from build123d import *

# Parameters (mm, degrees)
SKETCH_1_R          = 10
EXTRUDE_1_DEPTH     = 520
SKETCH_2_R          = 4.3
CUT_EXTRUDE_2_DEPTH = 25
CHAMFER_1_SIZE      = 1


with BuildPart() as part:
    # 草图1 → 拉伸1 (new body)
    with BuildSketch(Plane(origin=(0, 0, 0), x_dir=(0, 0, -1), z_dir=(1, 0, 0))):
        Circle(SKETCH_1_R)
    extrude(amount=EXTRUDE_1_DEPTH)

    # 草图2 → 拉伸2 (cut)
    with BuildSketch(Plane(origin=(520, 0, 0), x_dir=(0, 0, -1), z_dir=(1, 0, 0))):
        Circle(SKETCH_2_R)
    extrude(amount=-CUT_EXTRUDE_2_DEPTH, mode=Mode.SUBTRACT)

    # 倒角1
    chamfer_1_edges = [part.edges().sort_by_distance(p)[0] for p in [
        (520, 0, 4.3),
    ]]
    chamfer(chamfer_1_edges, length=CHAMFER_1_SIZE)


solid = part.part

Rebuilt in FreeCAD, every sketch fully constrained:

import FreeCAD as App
import Part
import Sketcher


def edges_at(feature, points):
    """Names of the edges that pass closest to the given points."""
    edges = feature.Shape.Edges
    near = lambda p: min(range(len(edges)), key=lambda i: edges[i].distToShape(Part.Vertex(*p))[0])
    return sorted({f"Edge{near(p) + 1}" for p in points})

doc = App.newDocument("Part")
params = doc.addObject("Spreadsheet::Sheet", "Params")
for row, (alias, value) in enumerate([
    ("sketch1_diameter", "20 mm"),
    ("pad1_length", "520 mm"),
    ("sketch2_diameter", "8.6 mm"),
    ("pocket1_length", "25 mm"),
    ("chamfer_size", "1 mm"),
], start=1):
    params.set(f"A{row}", alias)
    params.set(f"B{row}", "=" + value)
    params.setAlias(f"B{row}", alias)

body = doc.addObject("PartDesign::Body", "Body")

# Sketch on YZ plane
sketch1 = doc.addObject("Sketcher::SketchObject", "Sketch")
body.addObject(sketch1)
sketch1.AttachmentSupport = (doc.YZ_Plane, [""])
sketch1.MapMode = "FlatFace"
sketch1.addGeometry(Part.Circle(App.Vector(0, 0, 0), App.Vector(0, 0, 1), 10), False)
sketch1.addConstraint(Sketcher.Constraint("Coincident", 0, 3, -1, 1))
sketch1.addConstraint(Sketcher.Constraint("Diameter", 0, 20.0))
sketch1.setExpression("Constraints[1]", "Params.sketch1_diameter")
pad1 = doc.addObject("PartDesign::Pad", "Pad")
body.addObject(pad1)
pad1.Profile = sketch1
pad1.setExpression("Length", "Params.pad1_length")

# Sketch on YZ plane
sketch2 = doc.addObject("Sketcher::SketchObject", "Sketch001")
body.addObject(sketch2)
sketch2.AttachmentSupport = (doc.YZ_Plane, [""])
sketch2.MapMode = "FlatFace"
sketch2.AttachmentOffset = App.Placement(App.Vector(0, 0, 520), App.Rotation())
sketch2.addGeometry(Part.Circle(App.Vector(0, 0, 0), App.Vector(0, 0, 1), 4.3), False)
sketch2.addConstraint(Sketcher.Constraint("Coincident", 0, 3, -1, 1))
sketch2.addConstraint(Sketcher.Constraint("Diameter", 0, 8.6))
sketch2.setExpression("Constraints[1]", "Params.sketch2_diameter")
pocket1 = doc.addObject("PartDesign::Pocket", "Pocket")
body.addObject(pocket1)
pocket1.Profile = sketch2
pocket1.setExpression("Length", "Params.pocket1_length")
doc.recompute()

chamfer = doc.addObject("PartDesign::Chamfer", "Chamfer")
body.addObject(chamfer)
chamfer.Base = (pocket1, edges_at(pocket1, [(520, 0, 4.3)]))
chamfer.setExpression("Size", "Params.chamfer_size")

doc.recompute()
